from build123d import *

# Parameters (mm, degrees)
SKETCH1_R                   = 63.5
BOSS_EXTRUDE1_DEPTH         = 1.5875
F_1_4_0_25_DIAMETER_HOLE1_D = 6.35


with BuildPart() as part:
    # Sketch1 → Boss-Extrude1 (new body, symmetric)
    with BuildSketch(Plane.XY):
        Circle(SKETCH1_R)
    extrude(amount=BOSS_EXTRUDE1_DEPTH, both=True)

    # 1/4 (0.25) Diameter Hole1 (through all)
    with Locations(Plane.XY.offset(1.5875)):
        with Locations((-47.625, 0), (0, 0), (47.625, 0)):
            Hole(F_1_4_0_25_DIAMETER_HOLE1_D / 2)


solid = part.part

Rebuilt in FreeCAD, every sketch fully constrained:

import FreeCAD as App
import Part
import Sketcher
Q = App.Units.Quantity

doc = App.newDocument("Part")
body = doc.addObject("PartDesign::Body", "Body")

# Sketch on XY plane
sketch1 = body.newObject("Sketcher::SketchObject", "Sketch")
sketch1.AttachmentSupport = (doc.getObject("XY_Plane"), [""])
sketch1.MapMode = "FlatFace"
sketch1.addGeometry(Part.Circle(App.Vector(0, 0, 0), App.Vector(0, 0, 1), 64), False)
sketch1.addConstraint([
    Sketcher.Constraint("Coincident", 0, 3, -1, 1),
    Sketcher.Constraint("Diameter", 0, Q("5 in")),
])
pad1 = body.newObject("PartDesign::Pad", "Pad")
pad1.Profile = sketch1
pad1.Length = Q("0.125 in")
pad1.Midplane = True

# Sketch on XY plane
sketch2 = body.newObject("Sketcher::SketchObject", "Sketch001")
sketch2.AttachmentSupport = (doc.getObject("XY_Plane"), [""])
sketch2.MapMode = "FlatFace"
sketch2.AttachmentOffset = App.Placement(App.Vector(0, 0, 0.0625 * 25.4), App.Rotation())
sketch2.addGeometry([
    Part.Circle(App.Vector(-47.6, 0, 0), App.Vector(0, 0, 1), 3.2),
    Part.Circle(App.Vector(0, 0, 0), App.Vector(0, 0, 1), 3.2),
    Part.Circle(App.Vector(47.6, 0, 0), App.Vector(0, 0, 1), 3.2),
], False)
sketch2.addConstraint([
    Sketcher.Constraint("Coincident", 1, 3, -1, 1),
    Sketcher.Constraint("Equal", 0, 1),
    Sketcher.Constraint("Equal", 1, 2),
    Sketcher.Constraint("Symmetric", 0, 3, 2, 3, -1, 1),
    Sketcher.Constraint("PointOnObject", 0, 3, -1),
    Sketcher.Constraint("Diameter", 0, Q("0.25 in")),
    Sketcher.Constraint("DistanceX", 0, 3, 2, 3, Q("3.75 in")),
])
doc.recompute()
hole = body.newObject("PartDesign::Hole", "Hole")
hole.Profile = sketch2
hole.ThreadType = "None"
hole.Diameter = Q("0.25 in")
hole.DepthType = "ThroughAll"

doc.recompute()
